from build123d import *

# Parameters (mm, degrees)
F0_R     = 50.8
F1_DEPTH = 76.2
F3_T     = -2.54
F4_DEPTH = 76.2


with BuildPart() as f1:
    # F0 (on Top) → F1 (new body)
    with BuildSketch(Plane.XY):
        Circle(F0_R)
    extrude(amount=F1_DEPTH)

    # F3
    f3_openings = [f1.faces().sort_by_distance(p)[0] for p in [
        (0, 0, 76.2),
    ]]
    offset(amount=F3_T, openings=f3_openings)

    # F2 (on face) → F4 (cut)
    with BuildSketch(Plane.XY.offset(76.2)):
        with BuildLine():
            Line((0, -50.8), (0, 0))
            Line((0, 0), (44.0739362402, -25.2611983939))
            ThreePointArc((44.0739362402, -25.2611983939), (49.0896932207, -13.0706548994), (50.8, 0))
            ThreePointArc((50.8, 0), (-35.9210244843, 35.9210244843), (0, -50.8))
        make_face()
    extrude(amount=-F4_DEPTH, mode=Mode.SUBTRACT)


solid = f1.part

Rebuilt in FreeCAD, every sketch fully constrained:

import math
import FreeCAD as App
import Part
import Sketcher
from FreeCAD import Vector
Q = App.Units.Quantity


def faces_at(feature, points):
    """Names of the faces that lie closest to the given points."""
    faces = feature.Shape.Faces
    near = lambda p: min(range(len(faces)), key=lambda i: faces[i].distToShape(Part.Vertex(*p))[0])
    return sorted({f"Face{near(p) + 1}" for p in points})

doc = App.newDocument("Part")
params = doc.addObject("Spreadsheet::Sheet", "Params")
for row, (alias, value) in enumerate([
    ("sketch1_diameter", "4 in"),
    ("pad1_length", "3 in"),
    ("thickness_wall", "0.1 in"),
    ("sketch2_radius", "2 in"),
    ("pocket1_length", "3 in"),
], start=1):
    params.set(f"A{row}", alias)
    params.set(f"B{row}", "=" + value)
    params.setAlias(f"B{row}", alias)

body = doc.addObject("PartDesign::Body", "Body")

# Sketch on XY plane
sketch1 = body.newObject("Sketcher::SketchObject", "Sketch")
sketch1.AttachmentSupport = (doc.getObject("XY_Plane"), [""])
sketch1.MapMode = "FlatFace"
sketch1.addGeometry(Part.Circle(Vector(0, 0, 0), Vector(0, 0, 1), 51), False)
sketch1.addConstraint(Sketcher.Constraint("Coincident", 0, 3, -1, 1))
sketch1.addConstraint(Sketcher.Constraint("Diameter", 0, Q("4 in")))
sketch1.setExpression("Constraints[1]", "Params.sketch1_diameter")
pad1 = body.newObject("PartDesign::Pad", "Pad")
pad1.Profile = sketch1
pad1.setExpression("Length", "Params.pad1_length")
doc.recompute()

thickness = body.newObject("PartDesign::Thickness", "Thickness")
thickness.Base = (pad1, faces_at(pad1, [(0, 0, 76.2)]))
thickness.setExpression("Value", "Params.thickness_wall")
thickness.Reversed = True
thickness.Join = "Arc"

# Sketch on XY plane
sketch2 = body.newObject("Sketcher::SketchObject", "Sketch001")
sketch2.AttachmentSupport = (doc.getObject("XY_Plane"), [""])
sketch2.MapMode = "FlatFace"
sketch2.AttachmentOffset = App.Placement(Vector(0, 0, 3 * 25.4), App.Rotation())
sketch2.addGeometry(Part.LineSegment(Vector(0, -51, 0), Vector(0, 0, 0)), False)
sketch2.addGeometry(Part.LineSegment(Vector(0, 0, 0), Vector(44, -25, 0)), False)
sketch2.addGeometry(Part.ArcOfCircle(Part.Circle(Vector(0, 0, 0), Vector(0, 0, 1), 51), math.radians(-30), math.radians(0)), False)
sketch2.addGeometry(Part.ArcOfCircle(Part.Circle(Vector(0, 0, 0), Vector(0, 0, 1), 51), math.radians(0), math.radians(270)), False)
sketch2.addConstraint(Sketcher.Constraint("Coincident", 0, 2, 1, 1))
sketch2.addConstraint(Sketcher.Constraint("Coincident", 1, 2, 2, 1))
sketch2.addConstraint(Sketcher.Constraint("Tangent", 2, 2, 3, 1))
sketch2.addConstraint(Sketcher.Constraint("Coincident", 3, 2, 0, 1))
sketch2.addConstraint(Sketcher.Constraint("Vertical", 0))
sketch2.addConstraint(Sketcher.Constraint("Coincident", 2, 3, -1, 1))
sketch2.addConstraint(Sketcher.Constraint("Coincident", 0, 2, -1, 1))
sketch2.addConstraint(Sketcher.Constraint("Equal", 2, 3))
sketch2.addConstraint(Sketcher.Constraint("PointOnObject", 2, 2, -1))
sketch2.addConstraint(Sketcher.Constraint("Radius", 2, Q("2 in")))
sketch2.addConstraint(Sketcher.Constraint("DistanceY", 1, 2, -1, 1, 25.261198))
sketch2.setExpression("Constraints[9]", "Params.sketch2_radius")
pocket1 = body.newObject("PartDesign::Pocket", "Pocket")
pocket1.Profile = sketch2
pocket1.setExpression("Length", "Params.pocket1_length")

doc.recompute()
